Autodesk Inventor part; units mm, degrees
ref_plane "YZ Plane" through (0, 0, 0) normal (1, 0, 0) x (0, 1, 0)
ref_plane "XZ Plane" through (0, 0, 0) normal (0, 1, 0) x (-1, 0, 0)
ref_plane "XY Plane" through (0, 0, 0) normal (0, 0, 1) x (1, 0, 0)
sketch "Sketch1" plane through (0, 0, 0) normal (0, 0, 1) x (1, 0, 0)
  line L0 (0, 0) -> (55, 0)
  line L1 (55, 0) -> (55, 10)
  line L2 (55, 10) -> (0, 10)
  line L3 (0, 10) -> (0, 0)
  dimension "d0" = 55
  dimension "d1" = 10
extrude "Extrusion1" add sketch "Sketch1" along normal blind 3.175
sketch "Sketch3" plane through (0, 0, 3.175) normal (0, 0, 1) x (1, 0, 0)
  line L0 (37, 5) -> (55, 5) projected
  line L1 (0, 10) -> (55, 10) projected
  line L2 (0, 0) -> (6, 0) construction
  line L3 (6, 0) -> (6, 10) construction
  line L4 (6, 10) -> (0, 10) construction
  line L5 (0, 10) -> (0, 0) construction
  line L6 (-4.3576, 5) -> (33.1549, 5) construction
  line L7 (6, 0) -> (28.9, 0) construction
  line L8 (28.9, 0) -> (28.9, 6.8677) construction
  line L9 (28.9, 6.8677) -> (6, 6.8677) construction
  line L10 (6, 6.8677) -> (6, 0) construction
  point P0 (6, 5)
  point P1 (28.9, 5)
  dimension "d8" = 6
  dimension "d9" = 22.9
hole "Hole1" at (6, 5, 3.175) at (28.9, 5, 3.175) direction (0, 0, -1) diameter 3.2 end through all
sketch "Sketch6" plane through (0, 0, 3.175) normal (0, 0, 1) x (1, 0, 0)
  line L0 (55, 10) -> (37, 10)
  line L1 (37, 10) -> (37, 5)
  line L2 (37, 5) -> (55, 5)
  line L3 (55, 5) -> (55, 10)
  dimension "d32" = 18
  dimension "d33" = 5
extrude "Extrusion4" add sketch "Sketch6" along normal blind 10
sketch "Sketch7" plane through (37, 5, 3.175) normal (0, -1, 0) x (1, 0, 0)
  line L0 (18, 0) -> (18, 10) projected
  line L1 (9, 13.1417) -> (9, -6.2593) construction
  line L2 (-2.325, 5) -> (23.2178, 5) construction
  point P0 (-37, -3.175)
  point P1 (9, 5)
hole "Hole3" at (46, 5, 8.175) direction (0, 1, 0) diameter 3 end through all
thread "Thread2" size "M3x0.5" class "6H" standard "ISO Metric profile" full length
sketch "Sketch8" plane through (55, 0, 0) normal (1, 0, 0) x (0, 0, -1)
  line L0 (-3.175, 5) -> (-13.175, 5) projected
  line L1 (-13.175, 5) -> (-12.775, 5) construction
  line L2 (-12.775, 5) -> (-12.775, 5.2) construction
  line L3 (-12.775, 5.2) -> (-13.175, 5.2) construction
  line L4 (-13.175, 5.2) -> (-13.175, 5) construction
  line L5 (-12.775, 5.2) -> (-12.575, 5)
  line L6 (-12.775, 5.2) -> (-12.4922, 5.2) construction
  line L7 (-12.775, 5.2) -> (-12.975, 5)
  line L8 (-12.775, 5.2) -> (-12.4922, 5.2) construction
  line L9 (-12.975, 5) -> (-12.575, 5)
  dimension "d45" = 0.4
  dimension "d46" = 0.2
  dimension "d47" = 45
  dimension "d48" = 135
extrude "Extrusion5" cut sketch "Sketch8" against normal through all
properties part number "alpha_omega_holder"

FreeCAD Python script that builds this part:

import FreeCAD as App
import Part
import Sketcher

V = App.Vector

doc = App.newDocument("Part")
body = doc.addObject("PartDesign::Body", "Body")

sketch1 = doc.addObject("Sketcher::SketchObject", "Sketch")
body.addObject(sketch1)
sketch1.AttachmentSupport = (doc.XY_Plane, [""])
sketch1.MapMode = "FlatFace"
sketch1.addGeometry([
    Part.LineSegment(V(0, 10, 0), V(0, 0, 0)),
    Part.LineSegment(V(0, 0, 0), V(55, 0, 0)),
    Part.LineSegment(V(55, 0, 0), V(55, 10, 0)),
    Part.LineSegment(V(55, 10, 0), V(0, 10, 0)),
], False)
sketch1.addConstraint([
    Sketcher.Constraint("Coincident", 0, 2, 1, 1),
    Sketcher.Constraint("Coincident", 1, 2, 2, 1),
    Sketcher.Constraint("Coincident", 2, 2, 3, 1),
    Sketcher.Constraint("Coincident", 3, 2, 0, 1),
    Sketcher.Constraint("Vertical", 0),
    Sketcher.Constraint("Horizontal", 1),
    Sketcher.Constraint("Vertical", 2),
    Sketcher.Constraint("Horizontal", 3),
    Sketcher.Constraint("Coincident", 0, 2, -1, 1),
    Sketcher.Constraint("DistanceX", 1, 1, 1, 2, 55.0),
    Sketcher.Constraint("DistanceY", 0, 2, 0, 1, 10.0),
])
pad1 = doc.addObject("PartDesign::Pad", "Pad")
body.addObject(pad1)
pad1.Profile = sketch1
pad1.Length = 3.175

sketch2 = doc.addObject("Sketcher::SketchObject", "Sketch001")
body.addObject(sketch2)
sketch2.AttachmentSupport = (doc.XY_Plane, [""])
sketch2.MapMode = "FlatFace"
sketch2.AttachmentOffset = App.Placement(V(0, 0, 3.175), App.Rotation())
sketch2.addGeometry([
    Part.Circle(V(6, 5, 0), V(0, 0, 1), 1.6),
    Part.Circle(V(28.9, 5, 0), V(0, 0, 1), 1.6),
], False)
sketch2.addConstraint([
    Sketcher.Constraint("Equal", 0, 1),
    Sketcher.Constraint("Horizontal", 0, 3, 1, 3),
    Sketcher.Constraint("Diameter", 0, 3.2),
    Sketcher.Constraint("DistanceX", -1, 1, 0, 3, 6.0),
    Sketcher.Constraint("DistanceY", -1, 1, 0, 3, 5.0),
    Sketcher.Constraint("DistanceX", -1, 1, 1, 3, 28.9),
])
doc.recompute()
hole = doc.addObject("PartDesign::Hole", "Hole")
body.addObject(hole)
hole.Profile = sketch2
hole.ThreadType = "None"
hole.Diameter = 3.2
hole.DepthType = "ThroughAll"

sketch3 = doc.addObject("Sketcher::SketchObject", "Sketch002")
body.addObject(sketch3)
sketch3.AttachmentSupport = (doc.XY_Plane, [""])
sketch3.MapMode = "FlatFace"
sketch3.AttachmentOffset = App.Placement(V(0, 0, 3.175), App.Rotation())
sketch3.addGeometry([
    Part.LineSegment(V(55, 5, 0), V(55, 10, 0)),
    Part.LineSegment(V(55, 10, 0), V(37, 10, 0)),
    Part.LineSegment(V(37, 10, 0), V(37, 5, 0)),
    Part.LineSegment(V(37, 5, 0), V(55, 5, 0)),
], False)
sketch3.addConstraint([
    Sketcher.Constraint("Coincident", 0, 2, 1, 1),
    Sketcher.Constraint("Coincident", 1, 2, 2, 1),
    Sketcher.Constraint("Coincident", 2, 2, 3, 1),
    Sketcher.Constraint("Coincident", 3, 2, 0, 1),
    Sketcher.Constraint("Vertical", 0),
    Sketcher.Constraint("Horizontal", 1),
    Sketcher.Constraint("Vertical", 2),
    Sketcher.Constraint("Horizontal", 3),
    Sketcher.Constraint("DistanceX", 1, 2, 1, 1, 18.0),
    Sketcher.Constraint("DistanceY", 0, 1, 0, 2, 5.0),
    Sketcher.Constraint("DistanceY", -1, 1, 2, 2, 5.0),
    Sketcher.Constraint("DistanceX", -1, 1, 0, 2, 55.0),
])
pad2 = doc.addObject("PartDesign::Pad", "Pad001")
body.addObject(pad2)
pad2.Profile = sketch3
pad2.Length = 10

sketch4 = doc.addObject("Sketcher::SketchObject", "Sketch003")
body.addObject(sketch4)
sketch4.AttachmentSupport = (doc.XZ_Plane, [""])
sketch4.MapMode = "FlatFace"
sketch4.AttachmentOffset = App.Placement(V(0, 0, -5), App.Rotation())
sketch4.addGeometry(Part.Circle(V(46, 8.2, 0), V(0, 0, 1), 1.5), False)
sketch4.addConstraint([
    Sketcher.Constraint("Diameter", 0, 3.0),
    Sketcher.Constraint("DistanceX", -1, 1, 0, 3, 46.0),
    Sketcher.Constraint("DistanceY", -1, 1, 0, 3, 8.175),
])
doc.recompute()
hole2 = doc.addObject("PartDesign::Hole", "Hole001")
body.addObject(hole2)
hole2.Profile = sketch4
hole2.ThreadType = "None"
hole2.Diameter = 3
hole2.DepthType = "ThroughAll"

sketch5 = doc.addObject("Sketcher::SketchObject", "Sketch004")
body.addObject(sketch5)
sketch5.AttachmentSupport = (doc.YZ_Plane, [""])
sketch5.MapMode = "FlatFace"
sketch5.AttachmentOffset = App.Placement(V(0, 0, 55), App.Rotation())
sketch5.addGeometry([
    Part.LineSegment(V(5, 12.97, 0), V(5, 12.57, 0)),
    Part.LineSegment(V(5, 12.57, 0), V(5.2, 12.78, 0)),
    Part.LineSegment(V(5.2, 12.78, 0), V(5, 12.97, 0)),
], False)
sketch5.addConstraint([
    Sketcher.Constraint("Coincident", 0, 2, 1, 1),
    Sketcher.Constraint("Coincident", 1, 2, 2, 1),
    Sketcher.Constraint("Coincident", 2, 2, 0, 1),
    Sketcher.Constraint("Vertical", 0),
    Sketcher.Constraint("Perpendicular", 1, 2),
    Sketcher.Constraint("Equal", 1, 2),
    Sketcher.Constraint("DistanceY", 0, 2, 0, 1, 0.4),
    Sketcher.Constraint("DistanceX", -1, 1, 0, 2, 5.0),
    Sketcher.Constraint("DistanceY", -1, 1, 0, 2, 12.575),
])
pocket1 = doc.addObject("PartDesign::Pocket", "Pocket")
body.addObject(pocket1)
pocket1.Profile = sketch5
pocket1.Type = "ThroughAll"

doc.recompute()
